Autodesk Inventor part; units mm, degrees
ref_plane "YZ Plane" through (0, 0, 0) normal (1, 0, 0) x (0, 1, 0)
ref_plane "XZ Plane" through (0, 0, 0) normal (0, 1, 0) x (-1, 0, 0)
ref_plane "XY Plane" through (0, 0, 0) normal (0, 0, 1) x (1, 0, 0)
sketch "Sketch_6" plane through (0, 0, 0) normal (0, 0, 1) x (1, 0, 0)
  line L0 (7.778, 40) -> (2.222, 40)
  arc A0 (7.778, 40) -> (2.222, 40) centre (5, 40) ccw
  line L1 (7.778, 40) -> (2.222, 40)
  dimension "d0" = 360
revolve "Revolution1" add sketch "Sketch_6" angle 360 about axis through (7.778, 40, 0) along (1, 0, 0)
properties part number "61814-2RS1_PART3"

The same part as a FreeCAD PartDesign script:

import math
import FreeCAD as App
import Part
import Sketcher

doc = App.newDocument("Part")
params = doc.addObject("Spreadsheet::Sheet", "Params")
for row, (alias, value) in enumerate([
    ("revolution_angle", "360 deg"),
], start=1):
    params.set(f"A{row}", alias)
    params.set(f"B{row}", "=" + value)
    params.setAlias(f"B{row}", alias)

body = doc.addObject("PartDesign::Body", "Body")

# Sketch on XY plane
sketch1 = doc.addObject("Sketcher::SketchObject", "Sketch")
body.addObject(sketch1)
sketch1.AttachmentSupport = (doc.XY_Plane, [""])
sketch1.MapMode = "FlatFace"
sketch1.addGeometry(Part.LineSegment(App.Vector(2.2, 40, 0), App.Vector(7.8, 40, 0)), False)
sketch1.addGeometry(Part.ArcOfCircle(Part.Circle(App.Vector(5, 40, 0), App.Vector(0, 0, 1), 2.8), math.radians(0), math.radians(180)), False)
sketch1.addGeometry(Part.LineSegment(App.Vector(2.2, 40, 0), App.Vector(7.8, 40, 0)), True)  # axis
sketch1.addConstraint(Sketcher.Constraint("Coincident", 0, 1, 1, 2))
sketch1.addConstraint(Sketcher.Constraint("Coincident", 1, 1, 0, 2))
sketch1.addConstraint(Sketcher.Constraint("Horizontal", 0))
sketch1.addConstraint(Sketcher.Constraint("Horizontal", 2))
sketch1.addConstraint(Sketcher.Constraint("Coincident", 2, 1, 0, 1))
sketch1.addConstraint(Sketcher.Constraint("Horizontal", 1, 3, 0, 1))
sketch1.addConstraint(Sketcher.Constraint("Equal", 0, 2))
sketch1.addConstraint(Sketcher.Constraint("DistanceX", -1, 1, 1, 3, 5.0))
sketch1.addConstraint(Sketcher.Constraint("DistanceY", -1, 1, 1, 3, 40.0))
sketch1.addConstraint(Sketcher.Constraint("Radius", 1, 2.778))
revolution = doc.addObject("PartDesign::Revolution", "Revolution")
body.addObject(revolution)
revolution.Profile = sketch1
revolution.ReferenceAxis = (sketch1, ["Axis0"])
revolution.setExpression("Angle", "Params.revolution_angle")

doc.recompute()
